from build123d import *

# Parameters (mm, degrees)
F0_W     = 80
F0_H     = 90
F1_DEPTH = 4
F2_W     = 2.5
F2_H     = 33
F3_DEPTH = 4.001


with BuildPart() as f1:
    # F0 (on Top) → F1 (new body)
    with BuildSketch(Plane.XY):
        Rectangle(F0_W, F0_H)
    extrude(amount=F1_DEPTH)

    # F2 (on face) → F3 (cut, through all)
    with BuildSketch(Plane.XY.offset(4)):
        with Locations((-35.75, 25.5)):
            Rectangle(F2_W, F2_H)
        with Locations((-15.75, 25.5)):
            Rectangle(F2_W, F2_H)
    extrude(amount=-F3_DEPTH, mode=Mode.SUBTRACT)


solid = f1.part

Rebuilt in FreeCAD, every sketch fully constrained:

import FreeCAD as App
import Part
import Sketcher


def add_polygon(sketch, points):
    """Adds a closed chain of lines whose ends are joined by coincident constraints."""
    first, n = sketch.GeometryCount, len(points)
    for a, b in zip(points, points[1:] + points[:1]):
        sketch.addGeometry(Part.LineSegment(App.Vector(*a, 0), App.Vector(*b, 0)), False)
    for i in range(n):
        sketch.addConstraint(Sketcher.Constraint("Coincident", first + i, 2, first + (i + 1) % n, 1))

doc = App.newDocument("Part")
body = doc.addObject("PartDesign::Body", "Body")

# Sketch on XY plane
sketch1 = doc.addObject("Sketcher::SketchObject", "Sketch")
body.addObject(sketch1)
sketch1.AttachmentSupport = (doc.XY_Plane, [""])
sketch1.MapMode = "FlatFace"
add_polygon(sketch1, [(-40, 45), (-40, -45), (40, -45), (40, 45)])  # lines 0-3
sketch1.addConstraint([
    Sketcher.Constraint("Vertical", 0),
    Sketcher.Constraint("Horizontal", 1),
    Sketcher.Constraint("Vertical", 2),
    Sketcher.Constraint("Horizontal", 3),
    Sketcher.Constraint("Symmetric", 0, 2, 2, 2, -1, 1),
    Sketcher.Constraint("DistanceX", 1, 1, 1, 2, 80.0),
    Sketcher.Constraint("DistanceY", 0, 2, 0, 1, 90.0),
])
pad1 = doc.addObject("PartDesign::Pad", "Pad")
body.addObject(pad1)
pad1.Profile = sketch1
pad1.Length = 4

# Sketch on XY plane
sketch2 = doc.addObject("Sketcher::SketchObject", "Sketch001")
body.addObject(sketch2)
sketch2.AttachmentSupport = (doc.XY_Plane, [""])
sketch2.MapMode = "FlatFace"
sketch2.AttachmentOffset = App.Placement(App.Vector(0, 0, 4), App.Rotation())
add_polygon(sketch2, [(-37, 42), (-37, 9), (-34.5, 9), (-34.5, 42)])  # lines 0-3
add_polygon(sketch2, [(-17, 42), (-17, 9), (-14.5, 9), (-14.5, 42)])  # lines 4-7
sketch2.addConstraint([
    Sketcher.Constraint("Vertical", 0),
    Sketcher.Constraint("Horizontal", 1),
    Sketcher.Constraint("Vertical", 2),
    Sketcher.Constraint("Horizontal", 3),
    Sketcher.Constraint("Vertical", 4),
    Sketcher.Constraint("Horizontal", 5),
    Sketcher.Constraint("Vertical", 6),
    Sketcher.Constraint("Horizontal", 7),
    Sketcher.Constraint("Horizontal", 1, 2, 4, 2),
    Sketcher.Constraint("Horizontal", 3, 2, 6, 2),
    Sketcher.Constraint("Equal", 3, 5),
    Sketcher.Constraint("DistanceY", 0, 2, 0, 1, 33.0),
    Sketcher.Constraint("DistanceX", 1, 1, 1, 2, 2.5),
    Sketcher.Constraint("DistanceX", 0, 2, -1, 1, 37.0),
    Sketcher.Constraint("DistanceY", -1, 1, 0, 2, 9.0),
    Sketcher.Constraint("DistanceX", 4, 2, -1, 1, 17.0),
])
pocket1 = doc.addObject("PartDesign::Pocket", "Pocket")
body.addObject(pocket1)
pocket1.Profile = sketch2
pocket1.Type = "ThroughAll"

doc.recompute()
